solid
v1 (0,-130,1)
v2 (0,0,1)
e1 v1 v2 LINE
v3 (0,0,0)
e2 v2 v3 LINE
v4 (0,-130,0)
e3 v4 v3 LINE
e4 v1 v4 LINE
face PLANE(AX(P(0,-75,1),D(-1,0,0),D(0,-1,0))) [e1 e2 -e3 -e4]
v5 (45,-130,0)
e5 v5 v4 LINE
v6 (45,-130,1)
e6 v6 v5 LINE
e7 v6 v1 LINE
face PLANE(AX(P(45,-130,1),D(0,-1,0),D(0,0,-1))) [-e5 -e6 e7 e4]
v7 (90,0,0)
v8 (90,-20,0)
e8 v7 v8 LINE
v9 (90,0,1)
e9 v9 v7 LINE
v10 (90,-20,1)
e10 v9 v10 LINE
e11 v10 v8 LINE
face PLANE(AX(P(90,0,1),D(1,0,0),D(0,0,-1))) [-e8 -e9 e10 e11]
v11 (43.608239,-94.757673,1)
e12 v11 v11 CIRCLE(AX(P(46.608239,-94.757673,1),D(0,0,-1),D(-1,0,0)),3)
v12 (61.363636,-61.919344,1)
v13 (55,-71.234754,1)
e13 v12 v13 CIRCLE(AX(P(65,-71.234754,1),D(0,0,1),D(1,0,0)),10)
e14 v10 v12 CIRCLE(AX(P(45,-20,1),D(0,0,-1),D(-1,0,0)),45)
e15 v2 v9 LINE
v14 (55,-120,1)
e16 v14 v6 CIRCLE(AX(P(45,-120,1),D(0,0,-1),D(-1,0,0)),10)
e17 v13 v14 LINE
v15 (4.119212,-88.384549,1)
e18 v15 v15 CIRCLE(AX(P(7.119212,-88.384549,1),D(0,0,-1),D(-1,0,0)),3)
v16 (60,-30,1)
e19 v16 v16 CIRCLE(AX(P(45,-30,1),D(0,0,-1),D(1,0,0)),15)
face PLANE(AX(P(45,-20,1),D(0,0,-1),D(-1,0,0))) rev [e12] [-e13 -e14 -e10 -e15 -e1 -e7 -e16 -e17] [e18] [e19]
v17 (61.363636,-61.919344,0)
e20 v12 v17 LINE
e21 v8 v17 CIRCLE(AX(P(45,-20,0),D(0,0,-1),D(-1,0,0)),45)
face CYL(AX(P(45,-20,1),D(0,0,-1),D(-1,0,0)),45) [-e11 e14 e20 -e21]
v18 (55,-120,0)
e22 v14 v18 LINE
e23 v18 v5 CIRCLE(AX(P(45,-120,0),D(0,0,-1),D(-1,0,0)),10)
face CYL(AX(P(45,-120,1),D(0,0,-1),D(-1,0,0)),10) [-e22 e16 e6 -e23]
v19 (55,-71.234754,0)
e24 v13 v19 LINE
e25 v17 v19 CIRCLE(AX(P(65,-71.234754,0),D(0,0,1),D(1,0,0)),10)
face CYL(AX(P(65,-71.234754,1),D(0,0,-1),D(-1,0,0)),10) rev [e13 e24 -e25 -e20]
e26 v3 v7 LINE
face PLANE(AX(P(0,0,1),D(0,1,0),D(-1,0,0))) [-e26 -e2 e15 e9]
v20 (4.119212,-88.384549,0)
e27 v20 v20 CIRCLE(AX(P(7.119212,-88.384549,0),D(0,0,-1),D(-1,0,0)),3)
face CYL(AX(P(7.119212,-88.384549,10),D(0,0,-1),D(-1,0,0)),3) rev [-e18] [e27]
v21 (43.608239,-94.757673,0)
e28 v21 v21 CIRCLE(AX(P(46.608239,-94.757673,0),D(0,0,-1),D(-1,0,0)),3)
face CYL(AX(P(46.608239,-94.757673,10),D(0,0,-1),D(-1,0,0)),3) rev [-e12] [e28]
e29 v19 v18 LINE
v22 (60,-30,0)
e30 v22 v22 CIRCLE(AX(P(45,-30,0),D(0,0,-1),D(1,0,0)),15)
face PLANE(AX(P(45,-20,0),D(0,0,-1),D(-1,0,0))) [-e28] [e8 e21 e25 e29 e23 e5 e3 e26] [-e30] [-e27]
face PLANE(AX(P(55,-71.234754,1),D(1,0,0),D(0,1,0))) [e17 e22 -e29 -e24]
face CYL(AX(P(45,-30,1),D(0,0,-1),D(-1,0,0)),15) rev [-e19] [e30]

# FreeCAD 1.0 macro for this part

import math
import FreeCAD as App
import Part
import Sketcher

V = App.Vector

doc = App.newDocument("Part")
body = doc.addObject("PartDesign::Body", "Body")

# Sketch on XY plane
sketch1 = body.newObject("Sketcher::SketchObject", "Sketch")
sketch1.AttachmentSupport = (doc.getObject("XY_Plane"), [""])
sketch1.MapMode = "FlatFace"
sketch1.addGeometry([
    Part.LineSegment(V(0, 0, 0), V(90, 0, 0)),  # 0
    Part.LineSegment(V(90, 0, 0), V(90, -20, 0)),  # 1
    Part.ArcOfCircle(Part.Circle(V(45, -20, 0), V(0, 0, 1), 45), math.radians(-69), math.radians(0)),  # 2
    Part.ArcOfCircle(Part.Circle(V(65, -71, 0), V(0, 0, 1), 10), math.radians(111), math.radians(180)),  # 3
    Part.LineSegment(V(55, -71, 0), V(55, -120, 0)),  # 4
    Part.ArcOfCircle(Part.Circle(V(45, -120, 0), V(0, 0, 1), 10), math.radians(-90), math.radians(0)),  # 5
    Part.LineSegment(V(45, -130, 0), V(0, -130, 0)),  # 6
    Part.LineSegment(V(0, -130, 0), V(0, 0, 0)),  # 7
    Part.Circle(V(45, -30, 0), V(0, 0, 1), 15),  # 8
], False)
sketch1.addConstraint([
    Sketcher.Constraint("Coincident", 0, 2, 1, 1),
    Sketcher.Constraint("Tangent", 1, 2, 2, 2),
    Sketcher.Constraint("Tangent", 2, 1, 3, 1),
    Sketcher.Constraint("Tangent", 3, 2, 4, 1),
    Sketcher.Constraint("Tangent", 4, 2, 5, 2),
    Sketcher.Constraint("Tangent", 5, 1, 6, 1),
    Sketcher.Constraint("Coincident", 6, 2, 7, 1),
    Sketcher.Constraint("Coincident", 7, 2, 0, 1),
    Sketcher.Constraint("Horizontal", 0),
    Sketcher.Constraint("Vertical", 1),
    Sketcher.Constraint("Vertical", 4),
    Sketcher.Constraint("Horizontal", 6),
    Sketcher.Constraint("Vertical", 7),
    Sketcher.Constraint("Coincident", 7, 2, -1, 1),
    Sketcher.Constraint("Equal", 3, 5),
    Sketcher.Constraint("Vertical", 2, 3, 5, 3),
    Sketcher.Constraint("Vertical", 5, 3, 8, 3),
    Sketcher.Constraint("Diameter", 8, 30.0),
    Sketcher.Constraint("Radius", 2, 45.0),
    Sketcher.Constraint("Radius", 3, 10.0),
    Sketcher.Constraint("DistanceX", 0, 1, 0, 2, 90.0),
    Sketcher.Constraint("DistanceY", 1, 2, 1, 1, 20.0),
    Sketcher.Constraint("DistanceY", 7, 1, 7, 2, 130.0),
    Sketcher.Constraint("DistanceY", 8, 3, -1, 1, 30.0),
])
pad1 = body.newObject("PartDesign::Pad", "Pad")
pad1.Profile = sketch1
pad1.Length = 1

# Sketch on XY plane
sketch2 = body.newObject("Sketcher::SketchObject", "Sketch001")
sketch2.AttachmentSupport = (doc.getObject("XY_Plane"), [""])
sketch2.MapMode = "FlatFace"
sketch2.addGeometry([
    Part.Circle(V(46.6, -94.8, 0), V(0, 0, 1), 3),
    Part.ArcOfCircle(Part.Circle(V(7.1, -88.4, 0), V(0, 0, 1), 3), math.radians(171), math.radians(351)),
    Part.ArcOfCircle(Part.Circle(V(7.1, -88.4, 0), V(0, 0, 1), 3), math.radians(-9), math.radians(171)),
], False)
sketch2.addConstraint([
    Sketcher.Constraint("Tangent", 1, 1, 2, 2),
    Sketcher.Constraint("Coincident", 2, 1, 1, 2),
    Sketcher.Constraint("Equal", 0, 1),
    Sketcher.Constraint("Diameter", 0, 6.0),
    Sketcher.Constraint("DistanceX", -1, 1, 0, 3, 46.608239),
    Sketcher.Constraint("DistanceY", 1, 3, -1, 1, 88.384549),
    Sketcher.Constraint("DistanceX", -1, 1, 2, 1, 10.080889),
    Sketcher.Constraint("DistanceY", 0, 3, 1, 1, 6.851109),
    Sketcher.Constraint("DistanceY", 2, 1, 1, 1, 0.955969),
    Sketcher.Constraint("DistanceY", 0, 3, -1, 1, 94.757673),
])
pocket1 = body.newObject("PartDesign::Pocket", "Pocket")
pocket1.Profile = sketch2
pocket1.Length = 10
pocket1.Reversed = True

doc.recompute()
